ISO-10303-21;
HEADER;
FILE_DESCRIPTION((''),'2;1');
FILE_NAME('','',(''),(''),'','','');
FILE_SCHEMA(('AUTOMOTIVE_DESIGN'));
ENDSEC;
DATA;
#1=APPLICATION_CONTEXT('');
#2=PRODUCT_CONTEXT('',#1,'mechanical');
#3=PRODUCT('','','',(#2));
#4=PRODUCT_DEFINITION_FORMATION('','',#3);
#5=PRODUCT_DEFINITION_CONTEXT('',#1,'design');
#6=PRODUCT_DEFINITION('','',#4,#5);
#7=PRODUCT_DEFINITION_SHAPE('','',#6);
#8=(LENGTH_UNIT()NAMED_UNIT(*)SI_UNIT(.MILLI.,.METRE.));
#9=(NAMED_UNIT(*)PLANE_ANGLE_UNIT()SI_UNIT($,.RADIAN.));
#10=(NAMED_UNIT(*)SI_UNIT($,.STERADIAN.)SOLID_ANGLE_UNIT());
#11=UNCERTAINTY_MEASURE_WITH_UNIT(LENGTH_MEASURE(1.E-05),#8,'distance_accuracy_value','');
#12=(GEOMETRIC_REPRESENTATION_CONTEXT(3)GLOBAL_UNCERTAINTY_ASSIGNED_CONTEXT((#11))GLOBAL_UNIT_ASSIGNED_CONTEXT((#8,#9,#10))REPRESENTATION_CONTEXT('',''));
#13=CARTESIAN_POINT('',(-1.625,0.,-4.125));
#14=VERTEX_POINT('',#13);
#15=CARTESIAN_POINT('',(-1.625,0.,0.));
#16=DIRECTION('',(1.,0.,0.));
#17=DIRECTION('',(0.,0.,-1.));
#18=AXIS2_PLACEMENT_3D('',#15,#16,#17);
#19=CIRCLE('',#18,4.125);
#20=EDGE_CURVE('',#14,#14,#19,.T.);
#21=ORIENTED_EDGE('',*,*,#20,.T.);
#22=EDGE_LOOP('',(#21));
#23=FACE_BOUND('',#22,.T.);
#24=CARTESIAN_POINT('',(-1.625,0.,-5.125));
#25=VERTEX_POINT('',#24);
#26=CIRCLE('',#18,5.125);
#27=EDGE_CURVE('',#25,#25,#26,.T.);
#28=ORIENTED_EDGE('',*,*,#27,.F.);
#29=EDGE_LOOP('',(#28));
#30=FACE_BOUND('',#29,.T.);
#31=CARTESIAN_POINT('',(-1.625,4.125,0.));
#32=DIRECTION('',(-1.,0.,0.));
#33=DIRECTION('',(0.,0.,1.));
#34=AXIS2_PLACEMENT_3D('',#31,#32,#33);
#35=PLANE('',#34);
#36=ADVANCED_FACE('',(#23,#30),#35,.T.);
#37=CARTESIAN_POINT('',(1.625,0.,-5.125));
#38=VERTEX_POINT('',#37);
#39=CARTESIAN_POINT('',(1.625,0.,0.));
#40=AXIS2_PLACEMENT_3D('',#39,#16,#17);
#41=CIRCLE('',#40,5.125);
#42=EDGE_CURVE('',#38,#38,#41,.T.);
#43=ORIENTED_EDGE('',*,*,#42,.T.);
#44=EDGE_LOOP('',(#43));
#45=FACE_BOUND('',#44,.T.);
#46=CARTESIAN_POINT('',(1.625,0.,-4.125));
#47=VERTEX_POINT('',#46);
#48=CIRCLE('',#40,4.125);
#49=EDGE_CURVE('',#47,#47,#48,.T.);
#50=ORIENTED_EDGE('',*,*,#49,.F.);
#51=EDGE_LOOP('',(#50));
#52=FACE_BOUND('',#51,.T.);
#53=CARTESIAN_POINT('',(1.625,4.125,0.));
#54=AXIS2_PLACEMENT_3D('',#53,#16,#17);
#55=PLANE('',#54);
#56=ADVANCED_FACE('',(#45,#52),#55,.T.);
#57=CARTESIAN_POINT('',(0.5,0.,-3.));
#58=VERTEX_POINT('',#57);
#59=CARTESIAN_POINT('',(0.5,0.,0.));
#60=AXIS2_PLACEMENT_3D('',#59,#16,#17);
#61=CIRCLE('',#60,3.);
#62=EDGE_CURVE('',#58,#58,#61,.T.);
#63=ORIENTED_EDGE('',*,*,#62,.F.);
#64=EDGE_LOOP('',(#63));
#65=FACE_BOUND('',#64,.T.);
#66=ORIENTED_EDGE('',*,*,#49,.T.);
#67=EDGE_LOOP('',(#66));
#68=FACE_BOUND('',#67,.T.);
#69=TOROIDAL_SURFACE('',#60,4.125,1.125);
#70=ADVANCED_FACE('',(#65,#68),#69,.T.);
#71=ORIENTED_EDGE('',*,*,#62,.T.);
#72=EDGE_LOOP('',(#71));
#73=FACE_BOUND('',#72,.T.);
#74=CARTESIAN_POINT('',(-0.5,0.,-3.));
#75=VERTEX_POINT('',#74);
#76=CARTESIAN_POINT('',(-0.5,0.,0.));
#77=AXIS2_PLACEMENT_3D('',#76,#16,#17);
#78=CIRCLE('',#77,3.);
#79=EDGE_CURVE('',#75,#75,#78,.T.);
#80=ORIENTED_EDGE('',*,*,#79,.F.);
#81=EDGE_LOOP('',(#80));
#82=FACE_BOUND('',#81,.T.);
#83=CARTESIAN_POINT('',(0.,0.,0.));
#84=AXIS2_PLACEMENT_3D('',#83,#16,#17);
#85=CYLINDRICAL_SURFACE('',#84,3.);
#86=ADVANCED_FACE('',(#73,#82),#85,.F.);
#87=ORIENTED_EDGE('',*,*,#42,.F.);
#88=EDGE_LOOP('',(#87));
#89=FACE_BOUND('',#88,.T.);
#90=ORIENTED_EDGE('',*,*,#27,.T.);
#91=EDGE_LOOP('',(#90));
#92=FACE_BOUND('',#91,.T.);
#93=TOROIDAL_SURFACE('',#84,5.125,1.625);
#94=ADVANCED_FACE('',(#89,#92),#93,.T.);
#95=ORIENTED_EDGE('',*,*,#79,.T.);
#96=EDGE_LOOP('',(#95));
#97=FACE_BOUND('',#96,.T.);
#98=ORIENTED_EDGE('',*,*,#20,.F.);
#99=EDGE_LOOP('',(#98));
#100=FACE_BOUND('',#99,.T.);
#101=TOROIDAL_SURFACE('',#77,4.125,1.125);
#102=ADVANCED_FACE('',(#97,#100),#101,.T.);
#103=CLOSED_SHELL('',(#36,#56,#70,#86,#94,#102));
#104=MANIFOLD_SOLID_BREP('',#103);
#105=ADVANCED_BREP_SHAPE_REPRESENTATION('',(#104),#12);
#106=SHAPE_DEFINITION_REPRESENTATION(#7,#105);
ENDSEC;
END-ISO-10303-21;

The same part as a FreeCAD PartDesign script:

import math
import FreeCAD as App
import Part
import Sketcher

V = App.Vector

doc = App.newDocument("Part")
body = doc.addObject("PartDesign::Body", "Body")

# Sketch on XY plane
sketch1 = body.newObject("Sketcher::SketchObject", "Sketch")
sketch1.AttachmentSupport = (doc.getObject("XY_Plane"), [""])
sketch1.MapMode = "FlatFace"
sketch1.addGeometry([
    Part.LineSegment(V(-0.5, 3, 0), V(0.5, 3, 0)),  # 0
    Part.ArcOfCircle(Part.Circle(V(0.5, 4.1, 0), V(0, 0, 1), 1.1), math.radians(-90), math.radians(0)),  # 1
    Part.LineSegment(V(1.6, 4.1, 0), V(1.6, 5.1, 0)),  # 2
    Part.ArcOfCircle(Part.Circle(V(0, 5.1, 0), V(0, 0, 1), 1.6), math.radians(0), math.radians(180)),  # 3
    Part.LineSegment(V(-1.6, 5.1, 0), V(-1.6, 4.1, 0)),  # 4
    Part.ArcOfCircle(Part.Circle(V(-0.5, 4.1, 0), V(0, 0, 1), 1.1), math.radians(180), math.radians(270)),  # 5
], False)
sketch1.addConstraint([
    Sketcher.Constraint("Tangent", 0, 2, 1, 1),
    Sketcher.Constraint("Tangent", 1, 2, 2, 1),
    Sketcher.Constraint("Tangent", 2, 2, 3, 1),
    Sketcher.Constraint("Tangent", 3, 2, 4, 1),
    Sketcher.Constraint("Tangent", 4, 2, 5, 1),
    Sketcher.Constraint("Tangent", 5, 2, 0, 1),
    Sketcher.Constraint("Horizontal", 0),
    Sketcher.Constraint("Vertical", 2),
    Sketcher.Constraint("Vertical", 4),
    Sketcher.Constraint("Equal", 1, 5),
    Sketcher.Constraint("PointOnObject", 3, 3, -2),
    Sketcher.Constraint("Equal", 0, 2),
    Sketcher.Constraint("DistanceX", 0, 1, 0, 2, 1.0),
    Sketcher.Constraint("DistanceY", -1, 1, 0, 2, 3.0),
    Sketcher.Constraint("Radius", 1, 1.125),
])
revolution = body.newObject("PartDesign::Revolution", "Revolution")
revolution.Profile = sketch1
revolution.ReferenceAxis = (sketch1, ["H_Axis"])
revolution.Angle = 360

doc.recompute()
